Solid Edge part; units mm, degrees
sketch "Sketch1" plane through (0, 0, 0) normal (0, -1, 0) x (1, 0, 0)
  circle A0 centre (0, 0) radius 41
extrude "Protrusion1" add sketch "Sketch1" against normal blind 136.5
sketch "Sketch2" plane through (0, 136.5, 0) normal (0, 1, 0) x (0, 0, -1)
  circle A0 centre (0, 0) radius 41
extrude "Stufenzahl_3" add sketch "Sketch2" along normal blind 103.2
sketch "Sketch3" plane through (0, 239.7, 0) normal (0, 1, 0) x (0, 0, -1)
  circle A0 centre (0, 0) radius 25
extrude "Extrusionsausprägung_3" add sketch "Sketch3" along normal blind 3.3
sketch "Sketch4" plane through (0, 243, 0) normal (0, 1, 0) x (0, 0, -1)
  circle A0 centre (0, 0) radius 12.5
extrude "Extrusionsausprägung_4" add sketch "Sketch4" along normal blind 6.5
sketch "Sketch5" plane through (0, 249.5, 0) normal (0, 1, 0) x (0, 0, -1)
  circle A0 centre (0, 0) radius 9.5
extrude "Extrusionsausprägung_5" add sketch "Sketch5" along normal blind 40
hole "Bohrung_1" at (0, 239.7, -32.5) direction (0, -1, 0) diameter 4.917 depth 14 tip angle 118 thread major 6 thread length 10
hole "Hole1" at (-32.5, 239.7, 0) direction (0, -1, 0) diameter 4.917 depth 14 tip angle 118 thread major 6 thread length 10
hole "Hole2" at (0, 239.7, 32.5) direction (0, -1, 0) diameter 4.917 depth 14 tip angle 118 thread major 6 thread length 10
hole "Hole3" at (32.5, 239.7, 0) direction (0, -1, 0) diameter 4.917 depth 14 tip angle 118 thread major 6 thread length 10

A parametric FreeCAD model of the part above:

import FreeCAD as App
import Part
import Sketcher
Q = App.Units.Quantity

doc = App.newDocument("Part")
body = doc.addObject("PartDesign::Body", "Body")

# Sketch on XZ plane
sketch1 = doc.addObject("Sketcher::SketchObject", "Sketch")
body.addObject(sketch1)
sketch1.AttachmentSupport = (doc.XZ_Plane, [""])
sketch1.MapMode = "FlatFace"
sketch1.addGeometry(Part.Circle(App.Vector(0, 0, 0), App.Vector(0, 0, 1), 41), False)
sketch1.addConstraint([
    Sketcher.Constraint("Coincident", 0, 3, -1, 1),
    Sketcher.Constraint("Diameter", 0, Q("82 mm")),
])
pad1 = doc.addObject("PartDesign::Pad", "Pad")
body.addObject(pad1)
pad1.Profile = sketch1
pad1.Length = 136.5
pad1.Reversed = True

# Sketch on XZ plane
sketch2 = doc.addObject("Sketcher::SketchObject", "Sketch001")
body.addObject(sketch2)
sketch2.AttachmentSupport = (doc.XZ_Plane, [""])
sketch2.MapMode = "FlatFace"
sketch2.AttachmentOffset = App.Placement(App.Vector(0, 0, -136.5), App.Rotation())
sketch2.addGeometry(Part.Circle(App.Vector(0, 0, 0), App.Vector(0, 0, 1), 41), False)
sketch2.addConstraint([
    Sketcher.Constraint("Coincident", 0, 3, -1, 1),
    Sketcher.Constraint("Diameter", 0, Q("82 mm")),
])
pad2 = doc.addObject("PartDesign::Pad", "Pad001")
body.addObject(pad2)
pad2.Profile = sketch2
pad2.Length = 103.2
pad2.Reversed = True

# Sketch on XZ plane
sketch3 = doc.addObject("Sketcher::SketchObject", "Sketch002")
body.addObject(sketch3)
sketch3.AttachmentSupport = (doc.XZ_Plane, [""])
sketch3.MapMode = "FlatFace"
sketch3.AttachmentOffset = App.Placement(App.Vector(0, 0, -239.7), App.Rotation())
sketch3.addGeometry(Part.Circle(App.Vector(0, 0, 0), App.Vector(0, 0, 1), 25), False)
sketch3.addConstraint([
    Sketcher.Constraint("Coincident", 0, 3, -1, 1),
    Sketcher.Constraint("Diameter", 0, Q("50 mm")),
])
pad3 = doc.addObject("PartDesign::Pad", "Pad002")
body.addObject(pad3)
pad3.Profile = sketch3
pad3.Length = 3.3
pad3.Reversed = True

# Sketch on XZ plane
sketch4 = doc.addObject("Sketcher::SketchObject", "Sketch003")
body.addObject(sketch4)
sketch4.AttachmentSupport = (doc.XZ_Plane, [""])
sketch4.MapMode = "FlatFace"
sketch4.AttachmentOffset = App.Placement(App.Vector(0, 0, -243), App.Rotation())
sketch4.addGeometry(Part.Circle(App.Vector(0, 0, 0), App.Vector(0, 0, 1), 12), False)
sketch4.addConstraint([
    Sketcher.Constraint("Coincident", 0, 3, -1, 1),
    Sketcher.Constraint("Diameter", 0, Q("25 mm")),
])
pad4 = doc.addObject("PartDesign::Pad", "Pad003")
body.addObject(pad4)
pad4.Profile = sketch4
pad4.Length = 6.5
pad4.Reversed = True

# Sketch on XZ plane
sketch5 = doc.addObject("Sketcher::SketchObject", "Sketch004")
body.addObject(sketch5)
sketch5.AttachmentSupport = (doc.XZ_Plane, [""])
sketch5.MapMode = "FlatFace"
sketch5.AttachmentOffset = App.Placement(App.Vector(0, 0, -249.5), App.Rotation())
sketch5.addGeometry(Part.Circle(App.Vector(0, 0, 0), App.Vector(0, 0, 1), 10), False)
sketch5.addConstraint([
    Sketcher.Constraint("Coincident", 0, 3, -1, 1),
    Sketcher.Constraint("Diameter", 0, Q("19 mm")),
])
pad5 = doc.addObject("PartDesign::Pad", "Pad004")
body.addObject(pad5)
pad5.Profile = sketch5
pad5.Length = 40
pad5.Reversed = True

# Sketch on XZ plane
sketch6 = doc.addObject("Sketcher::SketchObject", "Sketch005")
body.addObject(sketch6)
sketch6.AttachmentSupport = (doc.XZ_Plane, [""])
sketch6.MapMode = "FlatFace"
sketch6.AttachmentOffset = App.Placement(App.Vector(0, 0, -239.7), App.Rotation())
sketch6.addGeometry(Part.Circle(App.Vector(0, -32.5, 0), App.Vector(0, 0, 1), 2.5), False)
sketch6.addConstraint([
    Sketcher.Constraint("PointOnObject", 0, 3, -2),
    Sketcher.Constraint("Diameter", 0, Q("4.917 mm")),
    Sketcher.Constraint("DistanceY", 0, 3, -1, 1, Q("32.5 mm")),
])
doc.recompute()
hole = doc.addObject("PartDesign::Hole", "Hole")
body.addObject(hole)
hole.Profile = sketch6
hole.ThreadType = "None"
hole.Diameter = 4.917
hole.DepthType = "Dimension"
hole.Depth = 14
hole.DrillPoint = "Angled"
hole.DrillPointAngle = 118
hole.Reversed = True

# Sketch on XZ plane
sketch7 = doc.addObject("Sketcher::SketchObject", "Sketch006")
body.addObject(sketch7)
sketch7.AttachmentSupport = (doc.XZ_Plane, [""])
sketch7.MapMode = "FlatFace"
sketch7.AttachmentOffset = App.Placement(App.Vector(0, 0, -239.7), App.Rotation())
sketch7.addGeometry(Part.Circle(App.Vector(-32.5, 0, 0), App.Vector(0, 0, 1), 2.5), False)
sketch7.addConstraint([
    Sketcher.Constraint("PointOnObject", 0, 3, -1),
    Sketcher.Constraint("Diameter", 0, Q("4.917 mm")),
    Sketcher.Constraint("DistanceX", 0, 3, -1, 1, Q("32.5 mm")),
])
doc.recompute()
hole2 = doc.addObject("PartDesign::Hole", "Hole001")
body.addObject(hole2)
hole2.Profile = sketch7
hole2.ThreadType = "None"
hole2.Diameter = 4.917
hole2.DepthType = "Dimension"
hole2.Depth = 14
hole2.DrillPoint = "Angled"
hole2.DrillPointAngle = 118
hole2.Reversed = True

# Sketch on XZ plane
sketch8 = doc.addObject("Sketcher::SketchObject", "Sketch007")
body.addObject(sketch8)
sketch8.AttachmentSupport = (doc.XZ_Plane, [""])
sketch8.MapMode = "FlatFace"
sketch8.AttachmentOffset = App.Placement(App.Vector(0, 0, -239.7), App.Rotation())
sketch8.addGeometry(Part.Circle(App.Vector(0, 32.5, 0), App.Vector(0, 0, 1), 2.5), False)
sketch8.addConstraint([
    Sketcher.Constraint("PointOnObject", 0, 3, -2),
    Sketcher.Constraint("Diameter", 0, Q("4.917 mm")),
    Sketcher.Constraint("DistanceY", -1, 1, 0, 3, Q("32.5 mm")),
])
doc.recompute()
hole3 = doc.addObject("PartDesign::Hole", "Hole002")
body.addObject(hole3)
hole3.Profile = sketch8
hole3.ThreadType = "None"
hole3.Diameter = 4.917
hole3.DepthType = "Dimension"
hole3.Depth = 14
hole3.DrillPoint = "Angled"
hole3.DrillPointAngle = 118
hole3.Reversed = True

# Sketch on XZ plane
sketch9 = doc.addObject("Sketcher::SketchObject", "Sketch008")
body.addObject(sketch9)
sketch9.AttachmentSupport = (doc.XZ_Plane, [""])
sketch9.MapMode = "FlatFace"
sketch9.AttachmentOffset = App.Placement(App.Vector(0, 0, -239.7), App.Rotation())
sketch9.addGeometry(Part.Circle(App.Vector(32.5, 0, 0), App.Vector(0, 0, 1), 2.5), False)
sketch9.addConstraint([
    Sketcher.Constraint("PointOnObject", 0, 3, -1),
    Sketcher.Constraint("Diameter", 0, Q("4.917 mm")),
    Sketcher.Constraint("DistanceX", -1, 1, 0, 3, Q("32.5 mm")),
])
doc.recompute()
hole4 = doc.addObject("PartDesign::Hole", "Hole003")
body.addObject(hole4)
hole4.Profile = sketch9
hole4.ThreadType = "None"
hole4.Diameter = 4.917
hole4.DepthType = "Dimension"
hole4.Depth = 14
hole4.DrillPoint = "Angled"
hole4.DrillPointAngle = 118
hole4.Reversed = True

doc.recompute()
